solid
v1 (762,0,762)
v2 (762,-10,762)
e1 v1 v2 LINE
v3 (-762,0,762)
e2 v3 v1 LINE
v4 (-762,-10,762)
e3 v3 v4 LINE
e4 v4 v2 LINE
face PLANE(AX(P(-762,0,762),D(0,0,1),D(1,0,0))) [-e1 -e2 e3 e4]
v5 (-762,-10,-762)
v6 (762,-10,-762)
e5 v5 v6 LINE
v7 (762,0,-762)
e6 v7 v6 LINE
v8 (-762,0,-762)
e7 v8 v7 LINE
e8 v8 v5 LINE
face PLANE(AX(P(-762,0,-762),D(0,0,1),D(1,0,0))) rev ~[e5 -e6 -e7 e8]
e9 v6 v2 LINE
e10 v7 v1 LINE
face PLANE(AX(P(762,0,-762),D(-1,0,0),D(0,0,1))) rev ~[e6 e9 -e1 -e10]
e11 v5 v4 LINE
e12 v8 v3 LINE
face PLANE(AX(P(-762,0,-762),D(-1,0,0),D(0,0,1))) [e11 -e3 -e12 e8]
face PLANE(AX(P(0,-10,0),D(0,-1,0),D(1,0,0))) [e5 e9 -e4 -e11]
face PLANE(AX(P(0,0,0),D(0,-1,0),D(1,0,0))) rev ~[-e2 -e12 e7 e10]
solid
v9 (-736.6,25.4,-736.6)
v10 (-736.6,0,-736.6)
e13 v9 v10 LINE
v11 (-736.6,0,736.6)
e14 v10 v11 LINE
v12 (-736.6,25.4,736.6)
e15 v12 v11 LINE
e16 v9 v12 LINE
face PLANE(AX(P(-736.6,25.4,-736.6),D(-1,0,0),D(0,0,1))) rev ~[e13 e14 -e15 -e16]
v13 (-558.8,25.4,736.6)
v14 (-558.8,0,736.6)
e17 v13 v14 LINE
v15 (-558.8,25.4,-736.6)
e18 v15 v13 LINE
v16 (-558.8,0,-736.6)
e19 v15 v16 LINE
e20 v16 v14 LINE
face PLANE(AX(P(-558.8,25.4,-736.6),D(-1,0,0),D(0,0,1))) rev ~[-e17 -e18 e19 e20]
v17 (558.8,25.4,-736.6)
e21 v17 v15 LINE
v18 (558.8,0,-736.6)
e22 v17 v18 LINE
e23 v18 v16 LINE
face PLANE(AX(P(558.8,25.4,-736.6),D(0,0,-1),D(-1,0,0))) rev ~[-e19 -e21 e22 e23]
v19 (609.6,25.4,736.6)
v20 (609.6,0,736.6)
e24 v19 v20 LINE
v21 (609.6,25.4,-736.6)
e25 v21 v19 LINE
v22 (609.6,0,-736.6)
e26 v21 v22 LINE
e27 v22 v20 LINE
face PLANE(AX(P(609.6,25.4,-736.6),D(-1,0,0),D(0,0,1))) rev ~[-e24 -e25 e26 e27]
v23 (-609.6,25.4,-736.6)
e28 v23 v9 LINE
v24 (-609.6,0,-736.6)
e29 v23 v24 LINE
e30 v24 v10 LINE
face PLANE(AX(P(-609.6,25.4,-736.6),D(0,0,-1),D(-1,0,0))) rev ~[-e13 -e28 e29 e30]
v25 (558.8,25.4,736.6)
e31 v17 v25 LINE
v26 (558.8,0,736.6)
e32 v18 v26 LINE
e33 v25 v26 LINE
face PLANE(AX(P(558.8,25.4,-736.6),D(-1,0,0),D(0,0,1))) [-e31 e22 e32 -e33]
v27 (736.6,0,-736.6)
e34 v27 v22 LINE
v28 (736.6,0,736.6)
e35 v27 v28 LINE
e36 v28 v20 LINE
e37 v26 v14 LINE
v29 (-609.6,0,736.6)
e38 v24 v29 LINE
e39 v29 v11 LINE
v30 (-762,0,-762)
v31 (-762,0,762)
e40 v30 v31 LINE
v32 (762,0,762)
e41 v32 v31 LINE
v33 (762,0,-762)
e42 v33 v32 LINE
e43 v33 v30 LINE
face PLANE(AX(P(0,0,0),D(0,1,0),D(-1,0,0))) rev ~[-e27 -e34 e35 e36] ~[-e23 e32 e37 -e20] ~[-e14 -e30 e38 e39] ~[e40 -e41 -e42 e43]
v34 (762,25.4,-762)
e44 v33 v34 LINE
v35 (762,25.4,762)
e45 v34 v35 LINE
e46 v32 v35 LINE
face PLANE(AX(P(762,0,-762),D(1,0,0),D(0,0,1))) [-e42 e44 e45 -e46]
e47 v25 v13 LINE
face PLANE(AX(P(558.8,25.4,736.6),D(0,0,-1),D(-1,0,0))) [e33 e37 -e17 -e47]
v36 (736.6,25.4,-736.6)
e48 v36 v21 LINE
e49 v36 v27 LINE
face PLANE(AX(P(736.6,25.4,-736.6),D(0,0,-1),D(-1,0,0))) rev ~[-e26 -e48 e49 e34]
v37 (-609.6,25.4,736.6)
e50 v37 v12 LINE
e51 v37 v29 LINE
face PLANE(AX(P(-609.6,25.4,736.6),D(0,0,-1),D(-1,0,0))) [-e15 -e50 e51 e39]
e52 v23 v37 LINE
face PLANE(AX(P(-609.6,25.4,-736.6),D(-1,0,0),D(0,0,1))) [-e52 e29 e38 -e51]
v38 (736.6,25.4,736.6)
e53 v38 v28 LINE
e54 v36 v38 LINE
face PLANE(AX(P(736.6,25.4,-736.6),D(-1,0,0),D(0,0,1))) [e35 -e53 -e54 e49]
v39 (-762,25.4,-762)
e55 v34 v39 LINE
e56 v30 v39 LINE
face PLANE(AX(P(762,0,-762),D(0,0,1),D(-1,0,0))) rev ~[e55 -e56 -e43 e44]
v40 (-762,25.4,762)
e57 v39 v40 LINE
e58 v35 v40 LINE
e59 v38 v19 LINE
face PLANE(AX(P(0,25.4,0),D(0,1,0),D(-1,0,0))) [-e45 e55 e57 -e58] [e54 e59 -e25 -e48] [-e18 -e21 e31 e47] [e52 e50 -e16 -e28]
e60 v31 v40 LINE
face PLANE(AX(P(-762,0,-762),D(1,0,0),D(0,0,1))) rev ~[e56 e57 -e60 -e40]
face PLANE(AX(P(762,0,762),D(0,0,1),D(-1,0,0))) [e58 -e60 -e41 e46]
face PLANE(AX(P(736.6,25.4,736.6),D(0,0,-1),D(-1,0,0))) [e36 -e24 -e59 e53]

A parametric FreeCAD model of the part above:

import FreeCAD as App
import Part
import Sketcher

V = App.Vector
Q = App.Units.Quantity

doc = App.newDocument("Part")
body = doc.addObject("PartDesign::Body", "Body")

# Sketch on XZ plane
sketch1 = doc.addObject("Sketcher::SketchObject", "Sketch")
body.addObject(sketch1)
sketch1.AttachmentSupport = (doc.XZ_Plane, [""])
sketch1.MapMode = "FlatFace"
sketch1.addGeometry(Part.LineSegment(V(-762, 762, 0), V(-762, -762, 0)), False)
sketch1.addGeometry(Part.LineSegment(V(-762, -762, 0), V(762, -762, 0)), False)
sketch1.addGeometry(Part.LineSegment(V(762, -762, 0), V(762, 762, 0)), False)
sketch1.addGeometry(Part.LineSegment(V(762, 762, 0), V(-762, 762, 0)), False)
sketch1.addConstraint(Sketcher.Constraint("Coincident", 0, 2, 1, 1))
sketch1.addConstraint(Sketcher.Constraint("Coincident", 1, 2, 2, 1))
sketch1.addConstraint(Sketcher.Constraint("Coincident", 2, 2, 3, 1))
sketch1.addConstraint(Sketcher.Constraint("Coincident", 3, 2, 0, 1))
sketch1.addConstraint(Sketcher.Constraint("Vertical", 0))
sketch1.addConstraint(Sketcher.Constraint("Horizontal", 1))
sketch1.addConstraint(Sketcher.Constraint("Vertical", 2))
sketch1.addConstraint(Sketcher.Constraint("Horizontal", 3))
sketch1.addConstraint(Sketcher.Constraint("Symmetric", 0, 2, 2, 2, -1, 1))
sketch1.addConstraint(Sketcher.Constraint("Equal", 3, 0))
sketch1.addConstraint(Sketcher.Constraint("DistanceX", 1, 1, 1, 2, Q("60 in")))
pad1 = doc.addObject("PartDesign::Pad", "Pad")
body.addObject(pad1)
pad1.Profile = sketch1
pad1.Length = 10
body2 = doc.addObject("PartDesign::Body", "Body001")

# Sketch on XZ plane
sketch2 = doc.addObject("Sketcher::SketchObject", "Sketch001")
body2.addObject(sketch2)
sketch2.AttachmentSupport = (doc.getObject("XZ_Plane001"), [""])
sketch2.MapMode = "FlatFace"
sketch2.addGeometry(Part.LineSegment(V(762, 762, 0), V(762, -762, 0)), False)
sketch2.addGeometry(Part.LineSegment(V(762, -762, 0), V(-762, -762, 0)), False)
sketch2.addGeometry(Part.LineSegment(V(-762, -762, 0), V(-762, 762, 0)), False)
sketch2.addGeometry(Part.LineSegment(V(-762, 762, 0), V(762, 762, 0)), False)
sketch2.addConstraint(Sketcher.Constraint("Coincident", 0, 2, 1, 1))
sketch2.addConstraint(Sketcher.Constraint("Coincident", 1, 2, 2, 1))
sketch2.addConstraint(Sketcher.Constraint("Coincident", 2, 2, 3, 1))
sketch2.addConstraint(Sketcher.Constraint("Coincident", 3, 2, 0, 1))
sketch2.addConstraint(Sketcher.Constraint("Vertical", 0))
sketch2.addConstraint(Sketcher.Constraint("Horizontal", 1))
sketch2.addConstraint(Sketcher.Constraint("Vertical", 2))
sketch2.addConstraint(Sketcher.Constraint("Horizontal", 3))
sketch2.addConstraint(Sketcher.Constraint("Symmetric", 0, 2, 2, 2, -1, 1))
sketch2.addConstraint(Sketcher.Constraint("Equal", 3, 0))
sketch2.addConstraint(Sketcher.Constraint("DistanceX", 1, 2, 1, 1, Q("60 in")))
pad2 = doc.addObject("PartDesign::Pad", "Pad001")
body2.addObject(pad2)
pad2.Profile = sketch2
pad2.Length = Q("1 in")
pad2.Reversed = True

# Sketch on XZ plane
sketch3 = doc.addObject("Sketcher::SketchObject", "Sketch002")
body2.addObject(sketch3)
sketch3.AttachmentSupport = (doc.getObject("XZ_Plane001"), [""])
sketch3.MapMode = "FlatFace"
sketch3.AttachmentOffset = App.Placement(V(0, 0, -1 * 25.4), App.Rotation())
sketch3.addGeometry(Part.LineSegment(V(736.6, 736.6, 0), V(736.6, -736.6, 0)), False)
sketch3.addGeometry(Part.LineSegment(V(736.6, -736.6, 0), V(609.6, -736.6, 0)), False)
sketch3.addGeometry(Part.LineSegment(V(609.6, -736.6, 0), V(609.6, 736.6, 0)), False)
sketch3.addGeometry(Part.LineSegment(V(609.6, 736.6, 0), V(736.6, 736.6, 0)), False)
sketch3.addGeometry(Part.LineSegment(V(558.8, 736.6, 0), V(558.8, -736.6, 0)), False)
sketch3.addGeometry(Part.LineSegment(V(558.8, -736.6, 0), V(-558.8, -736.6, 0)), False)
sketch3.addGeometry(Part.LineSegment(V(-558.8, -736.6, 0), V(-558.8, 736.6, 0)), False)
sketch3.addGeometry(Part.LineSegment(V(-558.8, 736.6, 0), V(558.8, 736.6, 0)), False)
sketch3.addGeometry(Part.LineSegment(V(-609.6, 736.6, 0), V(-609.6, -736.6, 0)), False)
sketch3.addGeometry(Part.LineSegment(V(-609.6, -736.6, 0), V(-736.6, -736.6, 0)), False)
sketch3.addGeometry(Part.LineSegment(V(-736.6, -736.6, 0), V(-736.6, 736.6, 0)), False)
sketch3.addGeometry(Part.LineSegment(V(-736.6, 736.6, 0), V(-609.6, 736.6, 0)), False)
sketch3.addConstraint(Sketcher.Constraint("Coincident", 0, 2, 1, 1))
sketch3.addConstraint(Sketcher.Constraint("Coincident", 1, 2, 2, 1))
sketch3.addConstraint(Sketcher.Constraint("Coincident", 2, 2, 3, 1))
sketch3.addConstraint(Sketcher.Constraint("Coincident", 3, 2, 0, 1))
sketch3.addConstraint(Sketcher.Constraint("Coincident", 4, 2, 5, 1))
sketch3.addConstraint(Sketcher.Constraint("Coincident", 5, 2, 6, 1))
sketch3.addConstraint(Sketcher.Constraint("Coincident", 6, 2, 7, 1))
sketch3.addConstraint(Sketcher.Constraint("Coincident", 7, 2, 4, 1))
sketch3.addConstraint(Sketcher.Constraint("Coincident", 8, 2, 9, 1))
sketch3.addConstraint(Sketcher.Constraint("Coincident", 9, 2, 10, 1))
sketch3.addConstraint(Sketcher.Constraint("Coincident", 10, 2, 11, 1))
sketch3.addConstraint(Sketcher.Constraint("Coincident", 11, 2, 8, 1))
sketch3.addConstraint(Sketcher.Constraint("Vertical", 0))
sketch3.addConstraint(Sketcher.Constraint("Horizontal", 1))
sketch3.addConstraint(Sketcher.Constraint("Vertical", 2))
sketch3.addConstraint(Sketcher.Constraint("Horizontal", 3))
sketch3.addConstraint(Sketcher.Constraint("Vertical", 4))
sketch3.addConstraint(Sketcher.Constraint("Horizontal", 5))
sketch3.addConstraint(Sketcher.Constraint("Vertical", 6))
sketch3.addConstraint(Sketcher.Constraint("Horizontal", 7))
sketch3.addConstraint(Sketcher.Constraint("Vertical", 8))
sketch3.addConstraint(Sketcher.Constraint("Horizontal", 9))
sketch3.addConstraint(Sketcher.Constraint("Vertical", 10))
sketch3.addConstraint(Sketcher.Constraint("Horizontal", 11))
sketch3.addConstraint(Sketcher.Constraint("Symmetric", 4, 2, 6, 2, -1, 1))
sketch3.addConstraint(Sketcher.Constraint("Symmetric", 2, 2, 8, 2, -1, 1))
sketch3.addConstraint(Sketcher.Constraint("Symmetric", 0, 2, 10, 2, -1, 1))
sketch3.addConstraint(Sketcher.Constraint("Horizontal", 1, 2, 4, 2))
sketch3.addConstraint(Sketcher.Constraint("Horizontal", 3, 2, 6, 2))
sketch3.addConstraint(Sketcher.Constraint("DistanceX", 1, 2, 1, 1, Q("5 in")))
sketch3.addConstraint(Sketcher.Constraint("DistanceX", 5, 2, 5, 1, Q("44 in")))
sketch3.addConstraint(Sketcher.Constraint("DistanceY", 0, 2, 0, 1, Q("58 in")))
sketch3.addConstraint(Sketcher.Constraint("DistanceX", -1, 1, 0, 2, Q("29 in")))
pocket1 = doc.addObject("PartDesign::Pocket", "Pocket")
body2.addObject(pocket1)
pocket1.Profile = sketch3
pocket1.Length = Q("1 in")
pocket1.Reversed = True

doc.recompute()
